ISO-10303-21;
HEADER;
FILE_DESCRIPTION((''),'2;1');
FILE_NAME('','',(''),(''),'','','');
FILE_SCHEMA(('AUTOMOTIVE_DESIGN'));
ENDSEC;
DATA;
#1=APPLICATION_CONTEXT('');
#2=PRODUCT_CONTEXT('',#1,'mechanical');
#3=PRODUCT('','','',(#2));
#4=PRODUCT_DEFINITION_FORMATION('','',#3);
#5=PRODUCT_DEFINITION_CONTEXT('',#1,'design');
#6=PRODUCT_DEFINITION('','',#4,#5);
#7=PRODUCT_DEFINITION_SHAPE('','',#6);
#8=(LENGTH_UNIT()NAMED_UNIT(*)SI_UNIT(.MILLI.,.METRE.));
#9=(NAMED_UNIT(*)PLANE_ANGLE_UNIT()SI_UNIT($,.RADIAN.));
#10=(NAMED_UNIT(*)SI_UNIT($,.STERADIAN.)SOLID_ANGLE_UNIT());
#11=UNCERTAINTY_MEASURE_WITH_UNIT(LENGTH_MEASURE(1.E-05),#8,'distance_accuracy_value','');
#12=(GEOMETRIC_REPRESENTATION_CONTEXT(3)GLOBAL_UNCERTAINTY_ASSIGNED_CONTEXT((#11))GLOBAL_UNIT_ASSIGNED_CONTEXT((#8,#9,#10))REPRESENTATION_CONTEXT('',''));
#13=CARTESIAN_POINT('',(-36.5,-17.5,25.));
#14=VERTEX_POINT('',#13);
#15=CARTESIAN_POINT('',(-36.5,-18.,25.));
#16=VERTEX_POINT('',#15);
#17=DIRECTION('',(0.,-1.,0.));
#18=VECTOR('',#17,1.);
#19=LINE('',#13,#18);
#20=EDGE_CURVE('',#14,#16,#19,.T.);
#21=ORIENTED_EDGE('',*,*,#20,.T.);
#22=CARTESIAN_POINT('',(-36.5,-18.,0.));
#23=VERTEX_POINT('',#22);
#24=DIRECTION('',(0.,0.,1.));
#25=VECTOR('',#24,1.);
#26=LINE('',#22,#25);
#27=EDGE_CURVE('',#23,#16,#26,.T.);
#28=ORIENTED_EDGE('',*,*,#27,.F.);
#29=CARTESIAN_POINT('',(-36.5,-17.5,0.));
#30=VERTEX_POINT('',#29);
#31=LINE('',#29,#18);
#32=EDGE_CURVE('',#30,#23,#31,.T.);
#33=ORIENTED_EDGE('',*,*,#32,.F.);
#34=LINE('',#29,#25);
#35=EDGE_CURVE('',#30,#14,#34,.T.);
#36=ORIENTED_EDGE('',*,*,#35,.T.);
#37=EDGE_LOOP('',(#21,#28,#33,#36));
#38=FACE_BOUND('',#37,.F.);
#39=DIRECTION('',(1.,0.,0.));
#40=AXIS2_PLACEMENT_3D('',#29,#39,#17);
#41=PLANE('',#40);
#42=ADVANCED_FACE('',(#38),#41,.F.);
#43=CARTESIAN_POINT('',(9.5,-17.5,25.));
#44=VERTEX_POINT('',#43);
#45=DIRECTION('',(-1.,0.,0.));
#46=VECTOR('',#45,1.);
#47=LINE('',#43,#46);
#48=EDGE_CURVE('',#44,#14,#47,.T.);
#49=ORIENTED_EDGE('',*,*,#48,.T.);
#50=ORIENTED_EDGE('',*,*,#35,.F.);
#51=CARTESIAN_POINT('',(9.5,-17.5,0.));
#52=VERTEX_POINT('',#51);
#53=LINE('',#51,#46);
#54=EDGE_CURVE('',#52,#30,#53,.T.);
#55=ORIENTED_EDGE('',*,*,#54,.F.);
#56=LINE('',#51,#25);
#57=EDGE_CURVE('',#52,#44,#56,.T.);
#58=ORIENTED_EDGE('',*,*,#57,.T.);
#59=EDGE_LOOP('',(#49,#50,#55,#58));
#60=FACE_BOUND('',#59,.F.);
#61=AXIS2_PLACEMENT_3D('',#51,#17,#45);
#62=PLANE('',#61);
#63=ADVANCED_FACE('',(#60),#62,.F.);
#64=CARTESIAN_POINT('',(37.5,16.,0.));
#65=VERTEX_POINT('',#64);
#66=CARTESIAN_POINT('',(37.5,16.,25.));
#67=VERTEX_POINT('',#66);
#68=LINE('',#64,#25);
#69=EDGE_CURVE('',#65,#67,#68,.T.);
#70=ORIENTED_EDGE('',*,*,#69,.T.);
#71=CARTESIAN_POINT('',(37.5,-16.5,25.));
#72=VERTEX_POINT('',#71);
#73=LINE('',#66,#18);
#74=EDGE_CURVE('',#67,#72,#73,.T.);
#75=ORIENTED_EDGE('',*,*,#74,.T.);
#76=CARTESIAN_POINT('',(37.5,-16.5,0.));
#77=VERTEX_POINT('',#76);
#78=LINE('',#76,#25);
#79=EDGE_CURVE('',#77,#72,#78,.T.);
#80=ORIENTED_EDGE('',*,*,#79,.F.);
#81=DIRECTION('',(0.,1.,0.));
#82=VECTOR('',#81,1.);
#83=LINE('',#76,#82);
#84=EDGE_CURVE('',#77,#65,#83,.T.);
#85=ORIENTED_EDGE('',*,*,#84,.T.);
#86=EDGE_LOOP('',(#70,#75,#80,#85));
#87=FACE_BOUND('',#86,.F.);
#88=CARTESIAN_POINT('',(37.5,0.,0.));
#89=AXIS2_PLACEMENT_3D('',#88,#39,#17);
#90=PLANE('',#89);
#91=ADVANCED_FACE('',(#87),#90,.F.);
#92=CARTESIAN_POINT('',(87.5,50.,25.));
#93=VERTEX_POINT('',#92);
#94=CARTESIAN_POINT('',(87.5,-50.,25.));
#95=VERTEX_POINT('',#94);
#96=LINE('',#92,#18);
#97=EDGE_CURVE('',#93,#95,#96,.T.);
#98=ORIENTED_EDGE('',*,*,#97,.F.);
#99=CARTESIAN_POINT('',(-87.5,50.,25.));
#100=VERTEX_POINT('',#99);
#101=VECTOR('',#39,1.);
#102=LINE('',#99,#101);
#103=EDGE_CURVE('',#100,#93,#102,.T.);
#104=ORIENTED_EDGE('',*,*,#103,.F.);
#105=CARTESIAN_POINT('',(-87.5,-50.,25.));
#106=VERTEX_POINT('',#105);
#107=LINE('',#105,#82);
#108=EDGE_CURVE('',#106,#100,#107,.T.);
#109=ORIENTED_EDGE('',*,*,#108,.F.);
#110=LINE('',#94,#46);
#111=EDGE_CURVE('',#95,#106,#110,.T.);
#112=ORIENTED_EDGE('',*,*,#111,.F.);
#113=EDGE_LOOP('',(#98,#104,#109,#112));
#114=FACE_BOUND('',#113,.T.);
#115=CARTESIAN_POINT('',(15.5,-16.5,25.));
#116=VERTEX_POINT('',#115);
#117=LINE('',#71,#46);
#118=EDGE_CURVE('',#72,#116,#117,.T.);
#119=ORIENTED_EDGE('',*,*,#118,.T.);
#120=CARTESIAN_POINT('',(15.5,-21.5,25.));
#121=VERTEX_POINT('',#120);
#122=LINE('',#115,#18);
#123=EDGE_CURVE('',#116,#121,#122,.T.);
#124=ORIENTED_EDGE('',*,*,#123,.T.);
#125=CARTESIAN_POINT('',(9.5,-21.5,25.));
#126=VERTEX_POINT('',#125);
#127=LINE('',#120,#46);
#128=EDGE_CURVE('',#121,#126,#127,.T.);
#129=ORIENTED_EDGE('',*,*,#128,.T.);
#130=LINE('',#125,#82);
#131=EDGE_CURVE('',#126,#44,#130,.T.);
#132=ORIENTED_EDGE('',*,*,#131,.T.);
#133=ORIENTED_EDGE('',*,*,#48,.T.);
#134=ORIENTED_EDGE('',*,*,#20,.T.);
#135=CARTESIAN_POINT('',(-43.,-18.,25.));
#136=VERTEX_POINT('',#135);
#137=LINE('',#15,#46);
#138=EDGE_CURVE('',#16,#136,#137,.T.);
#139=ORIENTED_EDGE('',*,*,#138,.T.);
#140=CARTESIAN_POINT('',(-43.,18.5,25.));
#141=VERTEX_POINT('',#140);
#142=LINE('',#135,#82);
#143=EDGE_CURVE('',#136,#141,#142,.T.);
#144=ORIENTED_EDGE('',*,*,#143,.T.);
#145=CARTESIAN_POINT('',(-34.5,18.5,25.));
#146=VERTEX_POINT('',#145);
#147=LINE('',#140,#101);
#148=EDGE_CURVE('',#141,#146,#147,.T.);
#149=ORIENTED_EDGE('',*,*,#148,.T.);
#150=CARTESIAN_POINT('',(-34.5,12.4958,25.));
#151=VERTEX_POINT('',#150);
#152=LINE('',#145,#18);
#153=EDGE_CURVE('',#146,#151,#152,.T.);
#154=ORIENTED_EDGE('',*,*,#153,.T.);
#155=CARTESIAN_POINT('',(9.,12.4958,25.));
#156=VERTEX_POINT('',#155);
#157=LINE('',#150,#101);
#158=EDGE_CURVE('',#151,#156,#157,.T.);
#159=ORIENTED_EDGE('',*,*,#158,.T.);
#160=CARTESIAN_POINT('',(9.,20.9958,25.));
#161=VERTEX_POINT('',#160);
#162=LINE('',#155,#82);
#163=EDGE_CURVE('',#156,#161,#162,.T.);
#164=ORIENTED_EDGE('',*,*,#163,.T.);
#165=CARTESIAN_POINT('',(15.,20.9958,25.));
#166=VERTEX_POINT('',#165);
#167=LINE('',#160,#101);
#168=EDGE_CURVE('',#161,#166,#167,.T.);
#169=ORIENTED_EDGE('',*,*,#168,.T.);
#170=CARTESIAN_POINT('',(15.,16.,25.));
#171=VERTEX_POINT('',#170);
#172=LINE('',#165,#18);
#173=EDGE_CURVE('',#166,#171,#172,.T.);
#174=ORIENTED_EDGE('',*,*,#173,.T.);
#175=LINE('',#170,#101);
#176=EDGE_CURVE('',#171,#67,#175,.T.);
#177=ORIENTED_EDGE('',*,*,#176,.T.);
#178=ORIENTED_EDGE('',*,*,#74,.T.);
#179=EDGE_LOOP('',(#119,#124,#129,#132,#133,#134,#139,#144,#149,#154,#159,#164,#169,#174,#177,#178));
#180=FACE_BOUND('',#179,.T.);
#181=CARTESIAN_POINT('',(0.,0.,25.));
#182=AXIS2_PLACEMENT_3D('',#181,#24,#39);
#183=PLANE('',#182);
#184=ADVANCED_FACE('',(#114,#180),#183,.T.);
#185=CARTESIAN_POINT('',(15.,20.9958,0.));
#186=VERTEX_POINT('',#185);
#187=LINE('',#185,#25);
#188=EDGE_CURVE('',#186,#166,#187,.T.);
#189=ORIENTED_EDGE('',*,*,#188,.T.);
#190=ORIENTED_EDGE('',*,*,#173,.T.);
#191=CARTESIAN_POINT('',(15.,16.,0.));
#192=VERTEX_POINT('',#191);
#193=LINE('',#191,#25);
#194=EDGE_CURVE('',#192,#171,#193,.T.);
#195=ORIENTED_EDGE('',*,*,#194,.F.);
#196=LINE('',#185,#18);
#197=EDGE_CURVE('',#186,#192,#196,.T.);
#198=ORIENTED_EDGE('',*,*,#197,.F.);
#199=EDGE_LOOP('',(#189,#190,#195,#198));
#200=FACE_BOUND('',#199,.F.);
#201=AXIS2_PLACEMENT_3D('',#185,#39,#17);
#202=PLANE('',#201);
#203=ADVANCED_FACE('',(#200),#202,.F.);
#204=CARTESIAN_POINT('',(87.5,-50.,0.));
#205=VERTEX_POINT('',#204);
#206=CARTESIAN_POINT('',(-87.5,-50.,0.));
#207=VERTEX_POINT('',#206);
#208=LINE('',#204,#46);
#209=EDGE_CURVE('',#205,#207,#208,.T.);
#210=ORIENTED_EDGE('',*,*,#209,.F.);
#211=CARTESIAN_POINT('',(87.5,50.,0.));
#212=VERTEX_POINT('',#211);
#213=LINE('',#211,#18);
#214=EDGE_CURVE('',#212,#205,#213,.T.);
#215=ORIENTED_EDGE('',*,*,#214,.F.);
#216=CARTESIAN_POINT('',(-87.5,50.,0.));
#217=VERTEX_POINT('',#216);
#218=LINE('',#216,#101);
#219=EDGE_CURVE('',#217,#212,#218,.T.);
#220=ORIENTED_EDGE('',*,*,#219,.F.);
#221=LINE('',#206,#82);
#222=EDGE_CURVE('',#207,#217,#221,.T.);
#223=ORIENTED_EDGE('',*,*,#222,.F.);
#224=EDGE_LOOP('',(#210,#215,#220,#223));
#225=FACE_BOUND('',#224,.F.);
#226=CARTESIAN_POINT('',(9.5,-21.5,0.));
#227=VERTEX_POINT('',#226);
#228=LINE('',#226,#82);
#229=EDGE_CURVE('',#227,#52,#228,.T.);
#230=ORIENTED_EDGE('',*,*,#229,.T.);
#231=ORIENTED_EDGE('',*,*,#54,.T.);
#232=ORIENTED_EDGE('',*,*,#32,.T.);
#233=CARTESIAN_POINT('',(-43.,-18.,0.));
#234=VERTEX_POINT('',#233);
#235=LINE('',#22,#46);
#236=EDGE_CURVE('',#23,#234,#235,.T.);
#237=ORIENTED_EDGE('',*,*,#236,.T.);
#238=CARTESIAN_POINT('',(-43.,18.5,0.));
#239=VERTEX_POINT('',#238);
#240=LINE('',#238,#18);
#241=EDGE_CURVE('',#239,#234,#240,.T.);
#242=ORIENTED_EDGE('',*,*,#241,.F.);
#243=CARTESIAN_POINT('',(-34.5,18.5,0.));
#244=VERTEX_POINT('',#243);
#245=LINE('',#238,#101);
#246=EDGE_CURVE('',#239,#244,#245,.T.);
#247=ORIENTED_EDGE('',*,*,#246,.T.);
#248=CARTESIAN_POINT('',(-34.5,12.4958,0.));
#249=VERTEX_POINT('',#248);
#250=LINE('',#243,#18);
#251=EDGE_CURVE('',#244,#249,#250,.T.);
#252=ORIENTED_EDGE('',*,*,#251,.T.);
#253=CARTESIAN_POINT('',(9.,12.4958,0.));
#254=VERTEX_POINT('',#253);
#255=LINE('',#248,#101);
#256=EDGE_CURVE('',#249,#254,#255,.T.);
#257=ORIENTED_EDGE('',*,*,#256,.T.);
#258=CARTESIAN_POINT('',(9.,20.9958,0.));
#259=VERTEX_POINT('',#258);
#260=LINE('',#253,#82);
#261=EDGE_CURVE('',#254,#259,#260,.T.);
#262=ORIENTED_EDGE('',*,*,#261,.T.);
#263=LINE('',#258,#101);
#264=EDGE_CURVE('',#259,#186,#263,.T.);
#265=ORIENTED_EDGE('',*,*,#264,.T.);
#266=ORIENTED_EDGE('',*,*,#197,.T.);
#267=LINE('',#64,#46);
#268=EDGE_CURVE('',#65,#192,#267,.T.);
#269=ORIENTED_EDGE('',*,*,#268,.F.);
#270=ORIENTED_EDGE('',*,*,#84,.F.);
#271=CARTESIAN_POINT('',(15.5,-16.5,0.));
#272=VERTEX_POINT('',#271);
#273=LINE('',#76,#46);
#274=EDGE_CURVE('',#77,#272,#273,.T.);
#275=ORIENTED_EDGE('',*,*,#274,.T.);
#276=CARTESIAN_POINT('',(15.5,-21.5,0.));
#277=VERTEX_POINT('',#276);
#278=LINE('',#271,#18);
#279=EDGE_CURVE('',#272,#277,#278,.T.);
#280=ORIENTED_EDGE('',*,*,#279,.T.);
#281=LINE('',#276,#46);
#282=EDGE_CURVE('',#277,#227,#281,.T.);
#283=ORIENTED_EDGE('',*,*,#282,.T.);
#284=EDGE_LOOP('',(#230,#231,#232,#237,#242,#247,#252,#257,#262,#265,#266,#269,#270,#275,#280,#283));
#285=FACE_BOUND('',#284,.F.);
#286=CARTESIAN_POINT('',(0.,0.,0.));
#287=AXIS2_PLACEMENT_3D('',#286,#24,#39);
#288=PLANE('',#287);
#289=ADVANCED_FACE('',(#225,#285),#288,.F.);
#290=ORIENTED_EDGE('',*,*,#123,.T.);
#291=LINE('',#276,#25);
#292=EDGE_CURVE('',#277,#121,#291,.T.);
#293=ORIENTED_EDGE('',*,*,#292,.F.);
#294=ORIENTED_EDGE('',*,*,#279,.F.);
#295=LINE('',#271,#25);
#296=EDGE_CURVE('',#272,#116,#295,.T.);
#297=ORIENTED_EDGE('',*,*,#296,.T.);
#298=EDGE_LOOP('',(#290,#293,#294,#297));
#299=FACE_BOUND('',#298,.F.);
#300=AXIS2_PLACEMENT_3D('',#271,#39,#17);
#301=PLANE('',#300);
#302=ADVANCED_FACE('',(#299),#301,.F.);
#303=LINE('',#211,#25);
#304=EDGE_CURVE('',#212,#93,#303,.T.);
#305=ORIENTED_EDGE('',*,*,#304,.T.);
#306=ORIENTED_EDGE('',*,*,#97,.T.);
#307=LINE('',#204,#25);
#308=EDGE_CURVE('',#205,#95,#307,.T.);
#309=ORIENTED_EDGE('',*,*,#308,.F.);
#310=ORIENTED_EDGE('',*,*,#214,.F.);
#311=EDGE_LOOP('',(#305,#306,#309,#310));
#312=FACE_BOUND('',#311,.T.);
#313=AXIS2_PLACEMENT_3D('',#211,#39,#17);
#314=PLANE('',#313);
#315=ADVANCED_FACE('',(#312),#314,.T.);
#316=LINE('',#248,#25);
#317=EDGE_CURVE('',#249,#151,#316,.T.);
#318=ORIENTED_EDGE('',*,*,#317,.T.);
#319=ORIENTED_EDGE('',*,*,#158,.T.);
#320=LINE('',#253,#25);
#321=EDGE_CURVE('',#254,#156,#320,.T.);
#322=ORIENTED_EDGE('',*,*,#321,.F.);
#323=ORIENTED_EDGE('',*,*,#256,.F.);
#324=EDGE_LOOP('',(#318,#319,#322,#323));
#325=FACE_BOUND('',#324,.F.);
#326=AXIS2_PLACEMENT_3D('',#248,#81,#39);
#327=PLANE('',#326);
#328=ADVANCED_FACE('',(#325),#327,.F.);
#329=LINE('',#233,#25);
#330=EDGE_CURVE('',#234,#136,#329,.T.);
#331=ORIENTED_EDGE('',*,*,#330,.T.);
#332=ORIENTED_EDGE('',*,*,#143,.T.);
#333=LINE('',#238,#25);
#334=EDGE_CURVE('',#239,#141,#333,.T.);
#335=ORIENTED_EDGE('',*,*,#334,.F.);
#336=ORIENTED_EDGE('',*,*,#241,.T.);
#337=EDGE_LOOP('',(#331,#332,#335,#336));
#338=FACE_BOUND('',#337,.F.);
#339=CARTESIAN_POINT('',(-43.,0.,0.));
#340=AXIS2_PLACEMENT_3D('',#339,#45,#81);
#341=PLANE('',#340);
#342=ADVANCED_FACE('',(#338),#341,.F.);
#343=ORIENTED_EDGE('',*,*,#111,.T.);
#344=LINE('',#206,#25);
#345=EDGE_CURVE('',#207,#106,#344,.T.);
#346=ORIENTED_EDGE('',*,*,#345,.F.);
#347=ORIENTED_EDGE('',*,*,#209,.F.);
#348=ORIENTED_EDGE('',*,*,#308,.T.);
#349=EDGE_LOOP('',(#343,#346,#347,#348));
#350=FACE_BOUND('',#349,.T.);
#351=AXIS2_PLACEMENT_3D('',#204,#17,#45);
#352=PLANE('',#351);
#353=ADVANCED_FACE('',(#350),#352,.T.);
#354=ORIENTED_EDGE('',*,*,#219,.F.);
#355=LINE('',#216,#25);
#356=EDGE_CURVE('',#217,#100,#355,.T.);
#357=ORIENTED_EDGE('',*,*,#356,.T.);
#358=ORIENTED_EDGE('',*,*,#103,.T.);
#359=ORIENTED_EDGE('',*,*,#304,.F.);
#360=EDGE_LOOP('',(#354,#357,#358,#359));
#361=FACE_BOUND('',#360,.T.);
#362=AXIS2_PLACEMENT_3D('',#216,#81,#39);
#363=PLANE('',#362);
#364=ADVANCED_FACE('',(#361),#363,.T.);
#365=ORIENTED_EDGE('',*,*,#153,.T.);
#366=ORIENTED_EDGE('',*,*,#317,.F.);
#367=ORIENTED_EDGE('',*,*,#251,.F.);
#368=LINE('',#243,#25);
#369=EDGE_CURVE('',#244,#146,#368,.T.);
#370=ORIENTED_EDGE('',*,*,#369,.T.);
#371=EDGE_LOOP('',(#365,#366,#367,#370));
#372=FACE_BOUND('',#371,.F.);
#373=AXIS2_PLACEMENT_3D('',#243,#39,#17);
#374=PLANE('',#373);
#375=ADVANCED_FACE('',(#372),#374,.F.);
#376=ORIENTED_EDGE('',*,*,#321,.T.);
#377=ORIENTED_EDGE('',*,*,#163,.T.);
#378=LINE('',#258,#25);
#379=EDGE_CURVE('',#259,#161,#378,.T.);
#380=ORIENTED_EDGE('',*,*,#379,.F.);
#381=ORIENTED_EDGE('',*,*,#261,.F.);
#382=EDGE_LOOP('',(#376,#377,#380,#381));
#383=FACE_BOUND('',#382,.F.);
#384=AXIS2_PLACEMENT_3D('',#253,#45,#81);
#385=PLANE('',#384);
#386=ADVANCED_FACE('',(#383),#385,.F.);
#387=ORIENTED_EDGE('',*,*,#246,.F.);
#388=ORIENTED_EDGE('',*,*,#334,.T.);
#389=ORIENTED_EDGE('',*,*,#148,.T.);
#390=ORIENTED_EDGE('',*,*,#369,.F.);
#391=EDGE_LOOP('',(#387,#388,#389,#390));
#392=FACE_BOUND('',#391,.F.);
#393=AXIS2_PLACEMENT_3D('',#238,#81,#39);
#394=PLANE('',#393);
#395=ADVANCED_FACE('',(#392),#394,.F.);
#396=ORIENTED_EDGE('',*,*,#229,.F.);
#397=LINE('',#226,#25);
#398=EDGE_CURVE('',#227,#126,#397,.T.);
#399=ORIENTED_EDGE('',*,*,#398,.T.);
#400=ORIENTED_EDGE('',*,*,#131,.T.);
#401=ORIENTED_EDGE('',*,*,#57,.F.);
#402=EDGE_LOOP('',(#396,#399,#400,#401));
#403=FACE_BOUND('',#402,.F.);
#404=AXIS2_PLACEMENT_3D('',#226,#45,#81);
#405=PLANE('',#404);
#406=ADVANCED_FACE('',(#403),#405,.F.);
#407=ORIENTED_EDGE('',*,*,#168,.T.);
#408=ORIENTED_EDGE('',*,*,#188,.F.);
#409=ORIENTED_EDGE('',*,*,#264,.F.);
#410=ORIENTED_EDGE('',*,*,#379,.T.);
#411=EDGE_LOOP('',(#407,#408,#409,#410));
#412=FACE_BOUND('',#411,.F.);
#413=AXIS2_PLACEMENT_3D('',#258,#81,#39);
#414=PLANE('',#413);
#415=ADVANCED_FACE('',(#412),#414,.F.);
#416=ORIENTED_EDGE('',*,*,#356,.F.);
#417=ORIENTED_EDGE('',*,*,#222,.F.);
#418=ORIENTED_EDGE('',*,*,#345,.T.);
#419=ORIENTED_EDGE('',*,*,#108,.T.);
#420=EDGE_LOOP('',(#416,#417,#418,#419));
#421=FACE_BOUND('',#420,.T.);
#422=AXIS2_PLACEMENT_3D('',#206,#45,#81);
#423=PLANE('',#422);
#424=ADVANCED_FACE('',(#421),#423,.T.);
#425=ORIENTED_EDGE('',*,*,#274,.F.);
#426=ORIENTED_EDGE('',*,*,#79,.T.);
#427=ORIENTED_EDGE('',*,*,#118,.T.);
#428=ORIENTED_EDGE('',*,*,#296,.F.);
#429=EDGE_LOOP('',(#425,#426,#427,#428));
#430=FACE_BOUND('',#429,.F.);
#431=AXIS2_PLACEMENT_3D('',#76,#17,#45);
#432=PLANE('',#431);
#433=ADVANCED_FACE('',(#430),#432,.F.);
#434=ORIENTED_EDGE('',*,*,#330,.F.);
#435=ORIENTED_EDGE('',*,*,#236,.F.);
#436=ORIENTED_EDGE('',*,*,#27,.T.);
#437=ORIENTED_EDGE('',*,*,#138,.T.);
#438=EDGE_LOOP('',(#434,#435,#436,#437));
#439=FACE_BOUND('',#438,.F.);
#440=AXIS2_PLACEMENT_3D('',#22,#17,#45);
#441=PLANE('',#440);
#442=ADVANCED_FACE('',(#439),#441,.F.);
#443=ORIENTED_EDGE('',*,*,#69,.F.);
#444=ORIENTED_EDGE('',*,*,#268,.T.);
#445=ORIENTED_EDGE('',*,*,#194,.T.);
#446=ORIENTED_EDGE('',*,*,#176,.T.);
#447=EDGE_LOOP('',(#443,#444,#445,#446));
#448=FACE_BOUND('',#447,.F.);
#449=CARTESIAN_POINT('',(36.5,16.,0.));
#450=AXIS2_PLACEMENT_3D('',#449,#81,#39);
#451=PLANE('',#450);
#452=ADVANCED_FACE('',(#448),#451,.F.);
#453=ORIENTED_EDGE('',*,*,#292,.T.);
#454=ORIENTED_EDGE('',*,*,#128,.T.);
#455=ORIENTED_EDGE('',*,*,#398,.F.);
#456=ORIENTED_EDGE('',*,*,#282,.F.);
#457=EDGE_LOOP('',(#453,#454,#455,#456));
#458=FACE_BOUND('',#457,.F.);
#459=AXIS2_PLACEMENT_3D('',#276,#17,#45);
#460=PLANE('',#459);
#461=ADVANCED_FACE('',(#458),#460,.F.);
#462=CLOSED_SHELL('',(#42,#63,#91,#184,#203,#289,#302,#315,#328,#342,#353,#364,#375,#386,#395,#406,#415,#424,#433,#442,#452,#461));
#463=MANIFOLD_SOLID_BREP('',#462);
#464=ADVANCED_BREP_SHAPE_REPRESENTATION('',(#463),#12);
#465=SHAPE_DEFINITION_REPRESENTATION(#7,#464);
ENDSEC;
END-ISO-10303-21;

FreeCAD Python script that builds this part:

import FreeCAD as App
import Part
import Sketcher


def add_polygon(sketch, points):
    """Adds a closed chain of lines whose ends are joined by coincident constraints."""
    first, n = sketch.GeometryCount, len(points)
    for a, b in zip(points, points[1:] + points[:1]):
        sketch.addGeometry(Part.LineSegment(App.Vector(*a, 0), App.Vector(*b, 0)), False)
    for i in range(n):
        sketch.addConstraint(Sketcher.Constraint("Coincident", first + i, 2, first + (i + 1) % n, 1))

doc = App.newDocument("Part")
params = doc.addObject("Spreadsheet::Sheet", "Params")
for row, (alias, value) in enumerate([
    ("sketch1_width", "175 mm"),
    ("sketch1_height", "100 mm"),
    ("pad1_length", "25 mm"),
    ("sketch2_width", "22 mm"),
    ("sketch2_width2", "6 mm"),
    ("sketch2_width3", "46 mm"),
    ("sketch2_height", "5 mm"),
    ("sketch2_height2", "4 mm"),
    ("pocket1_length", "25 mm"),
], start=1):
    params.set(f"A{row}", alias)
    params.set(f"B{row}", "=" + value)
    params.setAlias(f"B{row}", alias)

body = doc.addObject("PartDesign::Body", "Body")

# Sketch on XY plane
sketch1 = body.newObject("Sketcher::SketchObject", "Sketch")
sketch1.AttachmentSupport = (doc.getObject("XY_Plane"), [""])
sketch1.MapMode = "FlatFace"
add_polygon(sketch1, [(87.5, 50), (-87.5, 50), (-87.5, -50), (87.5, -50)])  # lines 0-3
sketch1.addConstraint(Sketcher.Constraint("Horizontal", 0))
sketch1.addConstraint(Sketcher.Constraint("Vertical", 1))
sketch1.addConstraint(Sketcher.Constraint("Horizontal", 2))
sketch1.addConstraint(Sketcher.Constraint("Vertical", 3))
sketch1.addConstraint(Sketcher.Constraint("Symmetric", 0, 2, 2, 2, -1, 1))
sketch1.addConstraint(Sketcher.Constraint("DistanceX", 0, 2, 0, 1, 175.0))
sketch1.addConstraint(Sketcher.Constraint("DistanceY", 1, 2, 1, 1, 100.0))
sketch1.setExpression("Constraints[9]", "Params.sketch1_width")
sketch1.setExpression("Constraints[10]", "Params.sketch1_height")
pad1 = body.newObject("PartDesign::Pad", "Pad")
pad1.Profile = sketch1
pad1.setExpression("Length", "Params.pad1_length")

# Sketch on XY plane
sketch2 = body.newObject("Sketcher::SketchObject", "Sketch001")
sketch2.AttachmentSupport = (doc.getObject("XY_Plane"), [""])
sketch2.MapMode = "FlatFace"
add_polygon(sketch2, [(37.5, 16), (37.5, -16.5), (15.5, -16.5), (15.5, -21.5), (9.5, -21.5), (9.5, -17.5), (-36.5, -17.5), (-36.5, -18), (-43, -18), (-43, 18.5), (-34.5, 18.5), (-34.5, 12.4958), (9, 12.4958), (9, 20.9958), (15, 20.9958), (15, 16)])  # lines 0-15
sketch2.addConstraint(Sketcher.Constraint("Vertical", 0))
sketch2.addConstraint(Sketcher.Constraint("Horizontal", 1))
sketch2.addConstraint(Sketcher.Constraint("Vertical", 2))
sketch2.addConstraint(Sketcher.Constraint("Horizontal", 3))
sketch2.addConstraint(Sketcher.Constraint("Vertical", 4))
sketch2.addConstraint(Sketcher.Constraint("Horizontal", 5))
sketch2.addConstraint(Sketcher.Constraint("Vertical", 6))
sketch2.addConstraint(Sketcher.Constraint("Horizontal", 7))
sketch2.addConstraint(Sketcher.Constraint("Vertical", 8))
sketch2.addConstraint(Sketcher.Constraint("Horizontal", 9))
sketch2.addConstraint(Sketcher.Constraint("Vertical", 10))
sketch2.addConstraint(Sketcher.Constraint("Horizontal", 11))
sketch2.addConstraint(Sketcher.Constraint("Vertical", 12))
sketch2.addConstraint(Sketcher.Constraint("Horizontal", 13))
sketch2.addConstraint(Sketcher.Constraint("Vertical", 14))
sketch2.addConstraint(Sketcher.Constraint("Horizontal", 15))
sketch2.addConstraint(Sketcher.Constraint("Equal", 3, 13))
sketch2.addConstraint(Sketcher.Constraint("Equal", 9, 12))
sketch2.addConstraint(Sketcher.Constraint("DistanceX", 1, 2, 1, 1, 22.0))
sketch2.addConstraint(Sketcher.Constraint("DistanceX", 3, 2, 3, 1, 6.0))
sketch2.addConstraint(Sketcher.Constraint("DistanceX", 5, 2, 5, 1, 46.0))
sketch2.addConstraint(Sketcher.Constraint("DistanceY", 2, 2, 2, 1, 5.0))
sketch2.addConstraint(Sketcher.Constraint("DistanceY", 4, 1, 4, 2, 4.0))
sketch2.addConstraint(Sketcher.Constraint("DistanceX", 7, 2, 7, 1, 6.5))
sketch2.addConstraint(Sketcher.Constraint("DistanceX", 9, 1, 9, 2, 8.5))
sketch2.addConstraint(Sketcher.Constraint("DistanceX", 15, 1, 15, 2, 22.5))
sketch2.addConstraint(Sketcher.Constraint("DistanceY", 6, 2, 6, 1, 0.5))
sketch2.addConstraint(Sketcher.Constraint("DistanceY", 6, 2, -1, 1, 18.0))
sketch2.addConstraint(Sketcher.Constraint("DistanceY", -1, 1, 14, 2, 16.0))
sketch2.addConstraint(Sketcher.Constraint("DistanceY", -1, 1, 8, 2, 18.5))
sketch2.addConstraint(Sketcher.Constraint("DistanceX", 7, 2, -1, 1, 43.0))
sketch2.addConstraint(Sketcher.Constraint("DistanceY", 10, 2, 10, 1, 6.0042))
sketch2.setExpression("Constraints[34]", "Params.sketch2_width")
sketch2.setExpression("Constraints[35]", "Params.sketch2_width2")
sketch2.setExpression("Constraints[36]", "Params.sketch2_width3")
sketch2.setExpression("Constraints[37]", "Params.sketch2_height")
sketch2.setExpression("Constraints[38]", "Params.sketch2_height2")
pocket1 = body.newObject("PartDesign::Pocket", "Pocket")
pocket1.Profile = sketch2
pocket1.setExpression("Length", "Params.pocket1_length")
pocket1.Reversed = True

doc.recompute()
